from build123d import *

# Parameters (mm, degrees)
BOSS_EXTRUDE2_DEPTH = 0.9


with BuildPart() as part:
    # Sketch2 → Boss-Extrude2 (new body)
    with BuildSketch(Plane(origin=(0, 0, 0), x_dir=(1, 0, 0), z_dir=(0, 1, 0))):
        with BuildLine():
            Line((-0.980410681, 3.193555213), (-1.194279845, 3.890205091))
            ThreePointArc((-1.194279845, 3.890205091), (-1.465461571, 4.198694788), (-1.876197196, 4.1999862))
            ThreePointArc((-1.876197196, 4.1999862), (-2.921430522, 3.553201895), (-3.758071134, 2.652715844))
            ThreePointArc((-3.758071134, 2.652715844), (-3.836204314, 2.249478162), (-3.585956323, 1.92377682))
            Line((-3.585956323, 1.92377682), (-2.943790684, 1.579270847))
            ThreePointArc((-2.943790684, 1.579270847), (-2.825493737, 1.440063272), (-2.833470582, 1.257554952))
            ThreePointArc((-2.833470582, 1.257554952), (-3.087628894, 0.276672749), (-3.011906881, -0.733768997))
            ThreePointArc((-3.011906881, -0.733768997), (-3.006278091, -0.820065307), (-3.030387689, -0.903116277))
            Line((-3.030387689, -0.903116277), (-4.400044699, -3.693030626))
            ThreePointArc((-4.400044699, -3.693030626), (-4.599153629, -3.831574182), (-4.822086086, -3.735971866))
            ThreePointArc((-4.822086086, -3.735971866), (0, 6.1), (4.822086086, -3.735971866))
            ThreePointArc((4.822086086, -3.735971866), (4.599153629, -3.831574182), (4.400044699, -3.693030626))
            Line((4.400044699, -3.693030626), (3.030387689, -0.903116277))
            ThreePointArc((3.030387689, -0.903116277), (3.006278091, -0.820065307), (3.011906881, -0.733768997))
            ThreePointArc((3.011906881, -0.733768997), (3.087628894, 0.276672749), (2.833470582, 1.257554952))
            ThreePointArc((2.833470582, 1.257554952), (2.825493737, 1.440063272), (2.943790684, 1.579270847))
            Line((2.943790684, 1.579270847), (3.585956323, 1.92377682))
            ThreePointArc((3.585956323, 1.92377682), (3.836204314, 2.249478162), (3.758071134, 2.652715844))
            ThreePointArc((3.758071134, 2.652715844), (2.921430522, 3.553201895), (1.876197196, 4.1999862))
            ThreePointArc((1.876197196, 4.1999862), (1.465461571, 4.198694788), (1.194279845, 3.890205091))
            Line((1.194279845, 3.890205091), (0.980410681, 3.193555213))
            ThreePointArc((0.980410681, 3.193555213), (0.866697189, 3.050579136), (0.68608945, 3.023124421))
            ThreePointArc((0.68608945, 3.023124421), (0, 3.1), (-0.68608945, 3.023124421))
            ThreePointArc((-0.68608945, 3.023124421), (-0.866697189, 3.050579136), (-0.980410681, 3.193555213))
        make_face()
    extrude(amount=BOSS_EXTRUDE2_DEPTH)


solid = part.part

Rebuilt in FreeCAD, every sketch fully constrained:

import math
import FreeCAD as App
import Part
import Sketcher

doc = App.newDocument("Part")
body = doc.addObject("PartDesign::Body", "Body")

# Sketch on XZ plane
sketch1 = body.newObject("Sketcher::SketchObject", "Sketch")
sketch1.AttachmentSupport = (doc.getObject("XZ_Plane"), [""])
sketch1.MapMode = "FlatFace"
sketch1.addGeometry(Part.LineSegment(App.Vector(-1.19428, -3.890205, 0), App.Vector(-0.980411, -3.193555, 0)), False)
sketch1.addGeometry(Part.ArcOfCircle(Part.Circle(App.Vector(-0.741419, -3.266925, 0), App.Vector(0, 0, 1), 0.25), math.radians(77.213473), math.radians(162.933691)), False)
sketch1.addGeometry(Part.ArcOfCircle(Part.Circle(App.Vector(0, 0, 0), App.Vector(0, 0, 1), 3.1), math.radians(-102.786526), math.radians(-77.213474)), False)
sketch1.addGeometry(Part.ArcOfCircle(Part.Circle(App.Vector(0.741419, -3.266925, 0), App.Vector(0, 0, 1), 0.25), math.radians(17.066309), math.radians(102.786527)), False)
sketch1.addGeometry(Part.LineSegment(App.Vector(0.980411, -3.193555, 0), App.Vector(1.19428, -3.890205, 0)), False)
sketch1.addGeometry(Part.ArcOfCircle(Part.Circle(App.Vector(1.672263, -3.743466, 0), App.Vector(0, 0, 1), 0.5), math.radians(-162.93369), math.radians(-65.928964)), False)
sketch1.addGeometry(Part.ArcOfCircle(Part.Circle(App.Vector(0, 0, 0), App.Vector(0, 0, 1), 4.6), math.radians(-65.928964), math.radians(-35.217183)), False)
sketch1.addGeometry(Part.ArcOfCircle(Part.Circle(App.Vector(3.349585, -2.364377, 0), App.Vector(0, 0, 1), 0.5), math.radians(-35.217183), math.radians(61.787543)), False)
sketch1.addGeometry(Part.LineSegment(App.Vector(3.585956, -1.923777, 0), App.Vector(2.943791, -1.579271, 0)), False)
sketch1.addGeometry(Part.ArcOfCircle(Part.Circle(App.Vector(3.061976, -1.358971, 0), App.Vector(0, 0, 1), 0.25), math.radians(156.067326), math.radians(241.787543)), False)
sketch1.addGeometry(Part.ArcOfCircle(Part.Circle(App.Vector(0, 0, 0), App.Vector(0, 0, 1), 3.1), math.radians(-23.932674), math.radians(13.691834)), False)
sketch1.addGeometry(Part.ArcOfCircle(Part.Circle(App.Vector(3.254803, 0.792944, 0), App.Vector(0, 0, 1), 0.25), math.radians(153.852121), math.radians(193.691834)), False)
sketch1.addGeometry(Part.LineSegment(App.Vector(3.030388, 0.903116, 0), App.Vector(4.400045, 3.693031, 0)), False)
sketch1.addGeometry(Part.ArcOfCircle(Part.Circle(App.Vector(4.62446, 3.582858, 0), App.Vector(0, 0, 1), 0.25), math.radians(37.767185), math.radians(153.852121)), False)
sketch1.addGeometry(Part.ArcOfCircle(Part.Circle(App.Vector(0, 0, 0), App.Vector(0, 0, 1), 6.1), math.radians(142.232815), math.radians(397.767185)), False)
sketch1.addGeometry(Part.ArcOfCircle(Part.Circle(App.Vector(-4.62446, 3.582858, 0), App.Vector(0, 0, 1), 0.25), math.radians(26.147879), math.radians(142.232815)), False)
sketch1.addGeometry(Part.LineSegment(App.Vector(-4.400045, 3.693031, 0), App.Vector(-3.030388, 0.903116, 0)), False)
sketch1.addGeometry(Part.ArcOfCircle(Part.Circle(App.Vector(-3.254803, 0.792944, 0), App.Vector(0, 0, 1), 0.25), math.radians(-13.691834), math.radians(26.147879)), False)
sketch1.addGeometry(Part.ArcOfCircle(Part.Circle(App.Vector(0, 0, 0), App.Vector(0, 0, 1), 3.1), math.radians(166.308166), math.radians(203.932674)), False)
sketch1.addGeometry(Part.ArcOfCircle(Part.Circle(App.Vector(-3.061976, -1.358971, 0), App.Vector(0, 0, 1), 0.25), math.radians(-61.787543), math.radians(23.932674)), False)
sketch1.addGeometry(Part.LineSegment(App.Vector(-2.943791, -1.579271, 0), App.Vector(-3.585956, -1.923777, 0)), False)
sketch1.addGeometry(Part.ArcOfCircle(Part.Circle(App.Vector(-3.349585, -2.364377, 0), App.Vector(0, 0, 1), 0.5), math.radians(118.212457), math.radians(215.217183)), False)
sketch1.addGeometry(Part.ArcOfCircle(Part.Circle(App.Vector(0, 0, 0), App.Vector(0, 0, 1), 4.6), math.radians(-144.782817), math.radians(-114.071036)), False)
sketch1.addGeometry(Part.ArcOfCircle(Part.Circle(App.Vector(-1.672263, -3.743466, 0), App.Vector(0, 0, 1), 0.5), math.radians(-114.071036), math.radians(-17.06631)), False)
sketch1.addConstraint(Sketcher.Constraint("Coincident", 0, 2, 1, 2))
sketch1.addConstraint(Sketcher.Constraint("Coincident", 1, 1, 2, 1))
sketch1.addConstraint(Sketcher.Constraint("Coincident", 2, 2, 3, 2))
sketch1.addConstraint(Sketcher.Constraint("Coincident", 3, 1, 4, 1))
sketch1.addConstraint(Sketcher.Constraint("Coincident", 4, 2, 5, 1))
sketch1.addConstraint(Sketcher.Constraint("Coincident", 5, 2, 6, 1))
sketch1.addConstraint(Sketcher.Constraint("Coincident", 6, 2, 7, 1))
sketch1.addConstraint(Sketcher.Constraint("Coincident", 7, 2, 8, 1))
sketch1.addConstraint(Sketcher.Constraint("Coincident", 8, 2, 9, 2))
sketch1.addConstraint(Sketcher.Constraint("Coincident", 9, 1, 10, 1))
sketch1.addConstraint(Sketcher.Constraint("Coincident", 10, 2, 11, 2))
sketch1.addConstraint(Sketcher.Constraint("Coincident", 11, 1, 12, 1))
sketch1.addConstraint(Sketcher.Constraint("Coincident", 12, 2, 13, 2))
sketch1.addConstraint(Sketcher.Constraint("Coincident", 13, 1, 14, 2))
sketch1.addConstraint(Sketcher.Constraint("Coincident", 14, 1, 15, 2))
sketch1.addConstraint(Sketcher.Constraint("Coincident", 15, 1, 16, 1))
sketch1.addConstraint(Sketcher.Constraint("Coincident", 16, 2, 17, 2))
sketch1.addConstraint(Sketcher.Constraint("Coincident", 17, 1, 18, 1))
sketch1.addConstraint(Sketcher.Constraint("Coincident", 18, 2, 19, 2))
sketch1.addConstraint(Sketcher.Constraint("Coincident", 19, 1, 20, 1))
sketch1.addConstraint(Sketcher.Constraint("Coincident", 20, 2, 21, 1))
sketch1.addConstraint(Sketcher.Constraint("Coincident", 21, 2, 22, 1))
sketch1.addConstraint(Sketcher.Constraint("Coincident", 22, 2, 23, 1))
sketch1.addConstraint(Sketcher.Constraint("Coincident", 23, 2, 0, 1))
sketch1.addConstraint(Sketcher.Constraint("Coincident", 2, 3, -1, 1))
sketch1.addConstraint(Sketcher.Constraint("Coincident", 6, 3, -1, 1))
sketch1.addConstraint(Sketcher.Constraint("Coincident", 10, 3, -1, 1))
sketch1.addConstraint(Sketcher.Constraint("Coincident", 14, 3, -1, 1))
sketch1.addConstraint(Sketcher.Constraint("Coincident", 18, 3, -1, 1))
sketch1.addConstraint(Sketcher.Constraint("Coincident", 22, 3, -1, 1))
sketch1.addConstraint(Sketcher.Constraint("Radius", 2, 3.1))
sketch1.addConstraint(Sketcher.Constraint("Radius", 5, 0.5))
sketch1.addConstraint(Sketcher.Constraint("Radius", 6, 4.6))
sketch1.addConstraint(Sketcher.Constraint("Radius", 7, 0.5))
sketch1.addConstraint(Sketcher.Constraint("Radius", 10, 3.1))
sketch1.addConstraint(Sketcher.Constraint("Radius", 14, 6.1))
sketch1.addConstraint(Sketcher.Constraint("Radius", 18, 3.1))
sketch1.addConstraint(Sketcher.Constraint("Radius", 21, 0.5))
sketch1.addConstraint(Sketcher.Constraint("Radius", 22, 4.6))
sketch1.addConstraint(Sketcher.Constraint("Radius", 23, 0.5))
sketch1.addConstraint(Sketcher.Constraint("Radius", 1, 0.25))
sketch1.addConstraint(Sketcher.Constraint("Radius", 3, 0.25))
sketch1.addConstraint(Sketcher.Constraint("Radius", 9, 0.25))
sketch1.addConstraint(Sketcher.Constraint("Radius", 11, 0.25))
sketch1.addConstraint(Sketcher.Constraint("Radius", 13, 0.25))
sketch1.addConstraint(Sketcher.Constraint("Radius", 15, 0.25))
sketch1.addConstraint(Sketcher.Constraint("Radius", 17, 0.25))
sketch1.addConstraint(Sketcher.Constraint("Radius", 19, 0.25))
sketch1.addConstraint(Sketcher.Constraint("DistanceY", 19, 3, 15, 1, 5.052001))
sketch1.addConstraint(Sketcher.Constraint("DistanceY", 1, 3, 1, 1, 0.2438))
sketch1.addConstraint(Sketcher.Constraint("DistanceY", 3, 3, 1, 1, 0.2438))
sketch1.addConstraint(Sketcher.Constraint("DistanceY", 3, 3, 2, 2, 0.2438))
sketch1.addConstraint(Sketcher.Constraint("DistanceX", 0, 2, 2, 2, 1.6665))
sketch1.addConstraint(Sketcher.Constraint("DistanceX", 1, 1, 3, 1, 1.6665))
sketch1.addConstraint(Sketcher.Constraint("DistanceX", 1, 3, 4, 2, 1.935699))
sketch1.addConstraint(Sketcher.Constraint("DistanceY", 7, 3, 7, 2, 0.4406))
sketch1.addConstraint(Sketcher.Constraint("DistanceY", 8, 2, 9, 3, 0.2203))
sketch1.addConstraint(Sketcher.Constraint("DistanceX", 9, 1, 6, 2, 0.924601))
sketch1.addConstraint(Sketcher.Constraint("DistanceX", 11, 1, 13, 1, 1.791698))
sketch1.addConstraint(Sketcher.Constraint("DistanceY", 18, 2, 17, 3, 2.050499))
sketch1.addConstraint(Sketcher.Constraint("DistanceY", 19, 1, 19, 3, 0.2203))
sketch1.addConstraint(Sketcher.Constraint("DistanceY", 21, 3, 20, 2, 0.4406))
sketch1.addConstraint(Sketcher.Constraint("DistanceX", 21, 2, 18, 2, 0.924601))
sketch1.addConstraint(Sketcher.Constraint("Distance", 0, 0.728739))
sketch1.addConstraint(Sketcher.Constraint("Distance", 4, 0.728739))
sketch1.addConstraint(Sketcher.Constraint("Distance", 8, 0.728739))
sketch1.addConstraint(Sketcher.Constraint("Distance", 20, 0.728739))
sketch1.addConstraint(Sketcher.Constraint("DistanceX", 1, 3, -1, 1, 0.741419))
sketch1.addConstraint(Sketcher.Constraint("DistanceY", 9, 3, -1, 1, 1.358971))
sketch1.addConstraint(Sketcher.Constraint("DistanceX", -1, 1, 13, 3, 4.62446))
sketch1.addConstraint(Sketcher.Constraint("DistanceX", 15, 3, -1, 1, 4.62446))
sketch1.addConstraint(Sketcher.Constraint("DistanceY", 19, 3, -1, 1, 1.358971))
sketch1.addConstraint(Sketcher.Constraint("DistanceX", -1, 1, 6, 2, 3.758071))
sketch1.addConstraint(Sketcher.Constraint("DistanceY", -1, 1, 10, 2, 0.733769))
sketch1.addConstraint(Sketcher.Constraint("DistanceY", -1, 1, 12, 2, 3.693031))
sketch1.addConstraint(Sketcher.Constraint("DistanceY", -1, 1, 13, 1, 3.735972))
sketch1.addConstraint(Sketcher.Constraint("DistanceY", -1, 1, 14, 1, 3.735972))
sketch1.addConstraint(Sketcher.Constraint("DistanceY", -1, 1, 17, 1, 0.733769))
sketch1.addConstraint(Sketcher.Constraint("DistanceX", 18, 2, -1, 1, 2.833471))
sketch1.addConstraint(Sketcher.Constraint("DistanceX", 23, 2, -1, 1, 1.19428))
sketch1.addConstraint(Sketcher.Constraint("DistanceY", 7, 3, 11, 3, 3.157321))
sketch1.addConstraint(Sketcher.Constraint("DistanceY", 5, 2, 5, 3, 0.45652))
sketch1.addConstraint(Sketcher.Constraint("DistanceX", 19, 3, 16, 2, 0.031589))
sketch1.addConstraint(Sketcher.Constraint("DistanceY", 22, 2, 23, 3, 0.45652))
pad1 = body.newObject("PartDesign::Pad", "Pad")
pad1.Profile = sketch1
pad1.Length = 0.9
pad1.Reversed = True

doc.recompute()
